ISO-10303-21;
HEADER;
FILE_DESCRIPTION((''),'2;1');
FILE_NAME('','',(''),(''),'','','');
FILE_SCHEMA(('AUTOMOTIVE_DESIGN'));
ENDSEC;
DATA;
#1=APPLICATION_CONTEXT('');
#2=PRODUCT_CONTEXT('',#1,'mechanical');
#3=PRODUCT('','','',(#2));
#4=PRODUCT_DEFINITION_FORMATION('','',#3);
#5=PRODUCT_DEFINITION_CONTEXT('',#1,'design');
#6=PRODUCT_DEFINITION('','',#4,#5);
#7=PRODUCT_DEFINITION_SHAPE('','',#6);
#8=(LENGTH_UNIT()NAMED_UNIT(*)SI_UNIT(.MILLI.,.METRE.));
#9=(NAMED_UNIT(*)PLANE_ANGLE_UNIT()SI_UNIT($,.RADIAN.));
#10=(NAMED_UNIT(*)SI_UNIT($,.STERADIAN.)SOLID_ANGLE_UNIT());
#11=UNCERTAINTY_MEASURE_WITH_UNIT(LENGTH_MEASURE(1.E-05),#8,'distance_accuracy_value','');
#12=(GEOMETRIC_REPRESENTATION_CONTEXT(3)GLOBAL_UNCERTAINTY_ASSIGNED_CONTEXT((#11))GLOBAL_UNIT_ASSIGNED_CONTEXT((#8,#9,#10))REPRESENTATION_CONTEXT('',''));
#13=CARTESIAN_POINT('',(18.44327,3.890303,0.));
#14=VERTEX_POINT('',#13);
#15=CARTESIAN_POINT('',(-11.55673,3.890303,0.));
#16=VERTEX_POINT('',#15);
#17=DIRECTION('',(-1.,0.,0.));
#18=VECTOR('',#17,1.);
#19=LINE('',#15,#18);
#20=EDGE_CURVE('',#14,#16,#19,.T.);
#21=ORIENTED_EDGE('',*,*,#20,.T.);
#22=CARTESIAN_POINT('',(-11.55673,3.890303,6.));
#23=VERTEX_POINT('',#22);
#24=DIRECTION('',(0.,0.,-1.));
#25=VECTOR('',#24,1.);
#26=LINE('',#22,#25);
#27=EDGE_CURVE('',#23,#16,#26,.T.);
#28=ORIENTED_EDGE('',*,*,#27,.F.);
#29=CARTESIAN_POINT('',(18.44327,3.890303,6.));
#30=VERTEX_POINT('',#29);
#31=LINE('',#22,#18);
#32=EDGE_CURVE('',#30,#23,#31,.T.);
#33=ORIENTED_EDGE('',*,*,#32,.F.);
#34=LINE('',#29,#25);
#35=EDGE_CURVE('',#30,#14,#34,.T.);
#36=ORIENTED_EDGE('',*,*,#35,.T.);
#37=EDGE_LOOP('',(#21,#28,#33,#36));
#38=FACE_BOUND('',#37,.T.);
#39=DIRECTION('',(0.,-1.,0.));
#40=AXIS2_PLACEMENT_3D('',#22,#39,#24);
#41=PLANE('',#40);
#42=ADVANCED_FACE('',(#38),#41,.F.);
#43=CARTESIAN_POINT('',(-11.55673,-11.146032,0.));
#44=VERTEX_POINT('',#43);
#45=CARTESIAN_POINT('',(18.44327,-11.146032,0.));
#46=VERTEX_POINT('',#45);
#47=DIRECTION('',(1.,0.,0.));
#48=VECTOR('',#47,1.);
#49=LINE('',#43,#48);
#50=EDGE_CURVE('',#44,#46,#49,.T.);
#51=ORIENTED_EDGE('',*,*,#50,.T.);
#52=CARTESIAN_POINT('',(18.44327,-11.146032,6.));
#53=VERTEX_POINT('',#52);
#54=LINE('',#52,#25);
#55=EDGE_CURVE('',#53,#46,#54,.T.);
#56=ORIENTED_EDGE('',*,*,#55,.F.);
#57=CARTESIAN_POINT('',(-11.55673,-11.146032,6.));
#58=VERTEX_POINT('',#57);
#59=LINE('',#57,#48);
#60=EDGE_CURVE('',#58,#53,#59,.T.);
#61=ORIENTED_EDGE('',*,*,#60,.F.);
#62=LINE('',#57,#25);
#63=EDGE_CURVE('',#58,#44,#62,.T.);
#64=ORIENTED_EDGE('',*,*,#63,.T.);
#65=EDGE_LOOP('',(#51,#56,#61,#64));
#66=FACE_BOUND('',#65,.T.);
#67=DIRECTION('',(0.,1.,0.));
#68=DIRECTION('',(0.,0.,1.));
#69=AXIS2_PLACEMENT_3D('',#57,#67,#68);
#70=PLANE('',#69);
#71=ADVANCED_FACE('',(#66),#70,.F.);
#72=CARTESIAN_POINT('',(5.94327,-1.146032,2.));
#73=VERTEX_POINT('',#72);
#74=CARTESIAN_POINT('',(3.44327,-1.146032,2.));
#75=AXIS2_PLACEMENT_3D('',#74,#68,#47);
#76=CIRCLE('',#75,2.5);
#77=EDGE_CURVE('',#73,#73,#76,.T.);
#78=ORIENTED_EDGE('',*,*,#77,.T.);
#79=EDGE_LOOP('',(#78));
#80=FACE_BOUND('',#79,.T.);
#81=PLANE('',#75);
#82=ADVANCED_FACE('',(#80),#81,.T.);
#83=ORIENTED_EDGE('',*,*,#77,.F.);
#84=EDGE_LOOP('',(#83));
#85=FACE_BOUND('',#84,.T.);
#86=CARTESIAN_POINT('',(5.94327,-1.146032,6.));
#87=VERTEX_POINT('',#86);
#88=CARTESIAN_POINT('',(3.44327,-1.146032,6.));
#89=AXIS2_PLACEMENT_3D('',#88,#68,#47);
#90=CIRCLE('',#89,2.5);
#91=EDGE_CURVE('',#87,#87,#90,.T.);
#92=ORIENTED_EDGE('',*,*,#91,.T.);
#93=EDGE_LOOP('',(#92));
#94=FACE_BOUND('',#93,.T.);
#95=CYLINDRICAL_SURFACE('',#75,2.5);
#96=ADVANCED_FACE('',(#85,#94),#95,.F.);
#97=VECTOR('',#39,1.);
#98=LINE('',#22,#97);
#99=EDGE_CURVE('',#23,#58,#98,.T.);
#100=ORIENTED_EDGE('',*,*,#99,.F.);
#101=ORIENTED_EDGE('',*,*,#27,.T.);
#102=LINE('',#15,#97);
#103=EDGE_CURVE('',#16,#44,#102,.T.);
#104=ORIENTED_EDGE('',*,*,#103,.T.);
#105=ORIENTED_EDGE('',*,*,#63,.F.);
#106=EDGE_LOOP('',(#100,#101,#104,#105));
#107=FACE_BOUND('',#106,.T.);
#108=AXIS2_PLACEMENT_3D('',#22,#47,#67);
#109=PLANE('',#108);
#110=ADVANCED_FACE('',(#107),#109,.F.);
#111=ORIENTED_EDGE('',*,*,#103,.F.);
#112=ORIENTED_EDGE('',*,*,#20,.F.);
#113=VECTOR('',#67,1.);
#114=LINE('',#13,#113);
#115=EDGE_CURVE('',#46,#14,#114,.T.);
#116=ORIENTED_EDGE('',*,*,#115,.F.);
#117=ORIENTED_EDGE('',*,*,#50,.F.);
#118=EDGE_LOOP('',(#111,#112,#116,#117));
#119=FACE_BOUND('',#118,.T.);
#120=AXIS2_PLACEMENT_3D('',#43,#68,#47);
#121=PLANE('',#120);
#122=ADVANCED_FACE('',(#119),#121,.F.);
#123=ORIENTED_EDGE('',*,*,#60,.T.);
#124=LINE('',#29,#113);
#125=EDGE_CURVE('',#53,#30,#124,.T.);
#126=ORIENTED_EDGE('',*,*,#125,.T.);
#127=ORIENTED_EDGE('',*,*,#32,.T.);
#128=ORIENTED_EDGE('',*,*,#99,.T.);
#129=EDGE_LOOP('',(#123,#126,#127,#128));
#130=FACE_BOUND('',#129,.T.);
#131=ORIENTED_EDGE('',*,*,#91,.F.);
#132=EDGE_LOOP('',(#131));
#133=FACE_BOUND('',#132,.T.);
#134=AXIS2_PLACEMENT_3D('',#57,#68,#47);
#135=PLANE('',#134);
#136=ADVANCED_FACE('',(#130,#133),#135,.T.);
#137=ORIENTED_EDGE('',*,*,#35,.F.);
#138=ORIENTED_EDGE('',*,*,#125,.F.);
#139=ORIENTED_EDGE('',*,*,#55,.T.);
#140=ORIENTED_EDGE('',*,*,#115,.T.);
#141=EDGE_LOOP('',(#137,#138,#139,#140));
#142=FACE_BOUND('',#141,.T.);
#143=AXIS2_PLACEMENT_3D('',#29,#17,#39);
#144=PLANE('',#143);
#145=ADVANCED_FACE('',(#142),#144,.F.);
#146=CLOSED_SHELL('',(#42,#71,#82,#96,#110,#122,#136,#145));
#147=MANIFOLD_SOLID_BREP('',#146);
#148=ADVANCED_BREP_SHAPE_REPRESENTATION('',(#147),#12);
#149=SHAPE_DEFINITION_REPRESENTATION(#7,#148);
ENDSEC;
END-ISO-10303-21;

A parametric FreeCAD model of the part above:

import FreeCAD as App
import Part
import Sketcher
from FreeCAD import Vector


def add_polygon(sketch, points):
    """Adds a closed chain of lines whose ends are joined by coincident constraints."""
    first, n = sketch.GeometryCount, len(points)
    for a, b in zip(points, points[1:] + points[:1]):
        sketch.addGeometry(Part.LineSegment(App.Vector(*a, 0), App.Vector(*b, 0)), False)
    for i in range(n):
        sketch.addConstraint(Sketcher.Constraint("Coincident", first + i, 2, first + (i + 1) % n, 1))

doc = App.newDocument("Part")
body = doc.addObject("PartDesign::Body", "Body")

sketch1 = body.newObject("Sketcher::SketchObject", "Sketch")
sketch1.AttachmentSupport = (doc.getObject("XY_Plane"), [""])
sketch1.MapMode = "FlatFace"
add_polygon(sketch1, [(-12, 4), (-12, -11), (18, -11), (18, 4)])
sketch1.addConstraint([
    Sketcher.Constraint("Vertical", 0),
    Sketcher.Constraint("Horizontal", 1),
    Sketcher.Constraint("Vertical", 2),
    Sketcher.Constraint("Horizontal", 3),
    Sketcher.Constraint("DistanceX", 1, 1, 1, 2, 30.0),
    Sketcher.Constraint("DistanceY", 0, 2, 0, 1, 15.036334),
    Sketcher.Constraint("DistanceX", 0, 2, -1, 1, 11.55673),
    Sketcher.Constraint("DistanceY", 0, 2, -1, 1, 11.146032),
])
pad1 = body.newObject("PartDesign::Pad", "Pad")
pad1.Profile = sketch1
pad1.Length = 6

sketch2 = body.newObject("Sketcher::SketchObject", "Sketch001")
sketch2.AttachmentSupport = (doc.getObject("XY_Plane"), [""])
sketch2.MapMode = "FlatFace"
sketch2.AttachmentOffset = App.Placement(Vector(0, 0, 6), App.Rotation())
sketch2.addGeometry(Part.Circle(Vector(3.4, -1.1, 0), Vector(0, 0, 1), 2.5), False)
sketch2.addConstraint([
    Sketcher.Constraint("Diameter", 0, 5.0),
    Sketcher.Constraint("DistanceX", -1, 1, 0, 3, 3.44327),
    Sketcher.Constraint("DistanceY", 0, 3, -1, 1, 1.146032),
])
pocket1 = body.newObject("PartDesign::Pocket", "Pocket")
pocket1.Profile = sketch2
pocket1.Length = 4

doc.recompute()
